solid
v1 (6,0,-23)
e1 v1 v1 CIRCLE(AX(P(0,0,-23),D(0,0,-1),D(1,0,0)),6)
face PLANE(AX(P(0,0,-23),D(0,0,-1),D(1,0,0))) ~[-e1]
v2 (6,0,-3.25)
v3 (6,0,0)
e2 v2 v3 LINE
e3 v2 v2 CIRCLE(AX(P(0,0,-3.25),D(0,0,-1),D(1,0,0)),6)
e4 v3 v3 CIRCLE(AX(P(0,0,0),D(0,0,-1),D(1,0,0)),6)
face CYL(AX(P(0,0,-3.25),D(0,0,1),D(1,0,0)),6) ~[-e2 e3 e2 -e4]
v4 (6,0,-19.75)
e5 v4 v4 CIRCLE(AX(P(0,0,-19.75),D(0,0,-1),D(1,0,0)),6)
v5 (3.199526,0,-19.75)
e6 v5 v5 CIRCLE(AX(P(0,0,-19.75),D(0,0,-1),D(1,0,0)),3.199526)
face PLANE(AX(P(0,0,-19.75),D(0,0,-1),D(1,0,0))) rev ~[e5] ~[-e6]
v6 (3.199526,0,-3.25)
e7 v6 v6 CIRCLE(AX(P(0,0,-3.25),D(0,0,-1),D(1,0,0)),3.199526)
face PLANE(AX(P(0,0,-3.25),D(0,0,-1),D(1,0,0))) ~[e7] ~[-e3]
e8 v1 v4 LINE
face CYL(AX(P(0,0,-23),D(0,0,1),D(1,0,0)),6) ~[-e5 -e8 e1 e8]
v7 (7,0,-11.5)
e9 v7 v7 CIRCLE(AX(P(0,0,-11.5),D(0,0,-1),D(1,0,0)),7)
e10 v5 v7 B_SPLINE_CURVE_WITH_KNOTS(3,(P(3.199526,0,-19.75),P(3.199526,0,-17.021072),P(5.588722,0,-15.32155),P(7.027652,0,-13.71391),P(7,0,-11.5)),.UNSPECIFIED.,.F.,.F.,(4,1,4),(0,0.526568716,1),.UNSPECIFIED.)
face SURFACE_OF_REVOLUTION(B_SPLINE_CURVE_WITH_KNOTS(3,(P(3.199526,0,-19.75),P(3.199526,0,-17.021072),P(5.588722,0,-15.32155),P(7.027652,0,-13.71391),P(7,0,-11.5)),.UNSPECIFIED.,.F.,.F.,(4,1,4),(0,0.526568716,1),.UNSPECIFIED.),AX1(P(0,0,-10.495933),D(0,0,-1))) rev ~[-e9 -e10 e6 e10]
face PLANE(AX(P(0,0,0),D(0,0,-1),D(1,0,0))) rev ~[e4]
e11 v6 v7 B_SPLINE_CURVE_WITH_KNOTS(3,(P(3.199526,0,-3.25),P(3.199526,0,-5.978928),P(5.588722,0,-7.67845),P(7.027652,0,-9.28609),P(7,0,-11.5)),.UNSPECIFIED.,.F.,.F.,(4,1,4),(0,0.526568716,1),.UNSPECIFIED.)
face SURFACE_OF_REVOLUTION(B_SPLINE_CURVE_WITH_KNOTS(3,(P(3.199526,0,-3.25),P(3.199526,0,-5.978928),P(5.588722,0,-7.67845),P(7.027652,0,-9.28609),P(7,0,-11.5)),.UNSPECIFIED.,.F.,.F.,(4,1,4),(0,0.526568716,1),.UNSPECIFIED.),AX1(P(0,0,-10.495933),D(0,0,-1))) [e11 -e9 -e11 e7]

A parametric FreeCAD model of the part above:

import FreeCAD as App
import Part
import Sketcher
from FreeCAD import Vector
Q = App.Units.Quantity

doc = App.newDocument("Part")
body = doc.addObject("PartDesign::Body", "Body")

sketch1 = body.newObject("Sketcher::SketchObject", "Sketch")
sketch1.AttachmentSupport = (doc.getObject("XZ_Plane"), [""])
sketch1.MapMode = "FlatFace"
sketch1.addGeometry([
    Part.LineSegment(Vector(6, 0, 0), Vector(0, 0, 0)),
    Part.LineSegment(Vector(0, 0, 0), Vector(0, -23, 0)),
    Part.LineSegment(Vector(0, -23, 0), Vector(6, -23, 0)),
    Part.LineSegment(Vector(6, -23, 0), Vector(6, -19.75, 0)),
    Part.LineSegment(Vector(6, -19.75, 0), Vector(3.199526, -19.75, 0)),
    Part.BSplineCurve([Vector(3.199526, -19.75, 0), Vector(3.199526, -17.021072, 0), Vector(5.588722, -15.32155, 0), Vector(7.027652, -13.71391, 0), Vector(7, -11.5, 0)], [4, 1, 4], [0, 0.526568716, 1], False, 3, [1, 1, 1, 1, 1], False),
    Part.BSplineCurve([Vector(3.199526, -3.25, 0), Vector(3.199526, -5.978928, 0), Vector(5.588722, -7.67845, 0), Vector(7.027652, -9.28609, 0), Vector(7, -11.5, 0)], [4, 1, 4], [0, 0.526568716, 1], False, 3, [1, 1, 1, 1, 1], False),
    Part.LineSegment(Vector(3.199526, -3.25, 0), Vector(6, -3.25, 0)),
    Part.LineSegment(Vector(6, -3.25, 0), Vector(6, 0, 0)),
], False)
sketch1.addConstraint([
    Sketcher.Constraint("Block", 5),
    Sketcher.Constraint("Block", 6),
    Sketcher.Constraint("Coincident", 0, 2, 1, 1),
    Sketcher.Constraint("Coincident", 1, 2, 2, 1),
    Sketcher.Constraint("Coincident", 2, 2, 3, 1),
    Sketcher.Constraint("Coincident", 3, 2, 4, 1),
    Sketcher.Constraint("Coincident", 4, 2, 5, 1),
    Sketcher.Constraint("Coincident", 6, 1, 7, 1),
    Sketcher.Constraint("Coincident", 7, 2, 8, 1),
    Sketcher.Constraint("Coincident", 8, 2, 0, 1),
    Sketcher.Constraint("Horizontal", 0),
    Sketcher.Constraint("Vertical", 1),
    Sketcher.Constraint("Horizontal", 2),
    Sketcher.Constraint("Vertical", 3),
    Sketcher.Constraint("Horizontal", 4),
    Sketcher.Constraint("Horizontal", 7),
    Sketcher.Constraint("Vertical", 8),
    Sketcher.Constraint("Coincident", 0, 2, -1, 1),
    Sketcher.Constraint("DistanceX", 0, 2, 0, 1, Q("6 mm")),
    Sketcher.Constraint("DistanceX", 2, 1, 2, 2, Q("6 mm")),
    Sketcher.Constraint("DistanceY", 1, 2, 1, 1, Q("23 mm")),
])
revolution = body.newObject("PartDesign::Revolution", "Revolution")
revolution.Profile = sketch1
revolution.ReferenceAxis = (sketch1, ["V_Axis"])
revolution.Angle = 360

doc.recompute()
